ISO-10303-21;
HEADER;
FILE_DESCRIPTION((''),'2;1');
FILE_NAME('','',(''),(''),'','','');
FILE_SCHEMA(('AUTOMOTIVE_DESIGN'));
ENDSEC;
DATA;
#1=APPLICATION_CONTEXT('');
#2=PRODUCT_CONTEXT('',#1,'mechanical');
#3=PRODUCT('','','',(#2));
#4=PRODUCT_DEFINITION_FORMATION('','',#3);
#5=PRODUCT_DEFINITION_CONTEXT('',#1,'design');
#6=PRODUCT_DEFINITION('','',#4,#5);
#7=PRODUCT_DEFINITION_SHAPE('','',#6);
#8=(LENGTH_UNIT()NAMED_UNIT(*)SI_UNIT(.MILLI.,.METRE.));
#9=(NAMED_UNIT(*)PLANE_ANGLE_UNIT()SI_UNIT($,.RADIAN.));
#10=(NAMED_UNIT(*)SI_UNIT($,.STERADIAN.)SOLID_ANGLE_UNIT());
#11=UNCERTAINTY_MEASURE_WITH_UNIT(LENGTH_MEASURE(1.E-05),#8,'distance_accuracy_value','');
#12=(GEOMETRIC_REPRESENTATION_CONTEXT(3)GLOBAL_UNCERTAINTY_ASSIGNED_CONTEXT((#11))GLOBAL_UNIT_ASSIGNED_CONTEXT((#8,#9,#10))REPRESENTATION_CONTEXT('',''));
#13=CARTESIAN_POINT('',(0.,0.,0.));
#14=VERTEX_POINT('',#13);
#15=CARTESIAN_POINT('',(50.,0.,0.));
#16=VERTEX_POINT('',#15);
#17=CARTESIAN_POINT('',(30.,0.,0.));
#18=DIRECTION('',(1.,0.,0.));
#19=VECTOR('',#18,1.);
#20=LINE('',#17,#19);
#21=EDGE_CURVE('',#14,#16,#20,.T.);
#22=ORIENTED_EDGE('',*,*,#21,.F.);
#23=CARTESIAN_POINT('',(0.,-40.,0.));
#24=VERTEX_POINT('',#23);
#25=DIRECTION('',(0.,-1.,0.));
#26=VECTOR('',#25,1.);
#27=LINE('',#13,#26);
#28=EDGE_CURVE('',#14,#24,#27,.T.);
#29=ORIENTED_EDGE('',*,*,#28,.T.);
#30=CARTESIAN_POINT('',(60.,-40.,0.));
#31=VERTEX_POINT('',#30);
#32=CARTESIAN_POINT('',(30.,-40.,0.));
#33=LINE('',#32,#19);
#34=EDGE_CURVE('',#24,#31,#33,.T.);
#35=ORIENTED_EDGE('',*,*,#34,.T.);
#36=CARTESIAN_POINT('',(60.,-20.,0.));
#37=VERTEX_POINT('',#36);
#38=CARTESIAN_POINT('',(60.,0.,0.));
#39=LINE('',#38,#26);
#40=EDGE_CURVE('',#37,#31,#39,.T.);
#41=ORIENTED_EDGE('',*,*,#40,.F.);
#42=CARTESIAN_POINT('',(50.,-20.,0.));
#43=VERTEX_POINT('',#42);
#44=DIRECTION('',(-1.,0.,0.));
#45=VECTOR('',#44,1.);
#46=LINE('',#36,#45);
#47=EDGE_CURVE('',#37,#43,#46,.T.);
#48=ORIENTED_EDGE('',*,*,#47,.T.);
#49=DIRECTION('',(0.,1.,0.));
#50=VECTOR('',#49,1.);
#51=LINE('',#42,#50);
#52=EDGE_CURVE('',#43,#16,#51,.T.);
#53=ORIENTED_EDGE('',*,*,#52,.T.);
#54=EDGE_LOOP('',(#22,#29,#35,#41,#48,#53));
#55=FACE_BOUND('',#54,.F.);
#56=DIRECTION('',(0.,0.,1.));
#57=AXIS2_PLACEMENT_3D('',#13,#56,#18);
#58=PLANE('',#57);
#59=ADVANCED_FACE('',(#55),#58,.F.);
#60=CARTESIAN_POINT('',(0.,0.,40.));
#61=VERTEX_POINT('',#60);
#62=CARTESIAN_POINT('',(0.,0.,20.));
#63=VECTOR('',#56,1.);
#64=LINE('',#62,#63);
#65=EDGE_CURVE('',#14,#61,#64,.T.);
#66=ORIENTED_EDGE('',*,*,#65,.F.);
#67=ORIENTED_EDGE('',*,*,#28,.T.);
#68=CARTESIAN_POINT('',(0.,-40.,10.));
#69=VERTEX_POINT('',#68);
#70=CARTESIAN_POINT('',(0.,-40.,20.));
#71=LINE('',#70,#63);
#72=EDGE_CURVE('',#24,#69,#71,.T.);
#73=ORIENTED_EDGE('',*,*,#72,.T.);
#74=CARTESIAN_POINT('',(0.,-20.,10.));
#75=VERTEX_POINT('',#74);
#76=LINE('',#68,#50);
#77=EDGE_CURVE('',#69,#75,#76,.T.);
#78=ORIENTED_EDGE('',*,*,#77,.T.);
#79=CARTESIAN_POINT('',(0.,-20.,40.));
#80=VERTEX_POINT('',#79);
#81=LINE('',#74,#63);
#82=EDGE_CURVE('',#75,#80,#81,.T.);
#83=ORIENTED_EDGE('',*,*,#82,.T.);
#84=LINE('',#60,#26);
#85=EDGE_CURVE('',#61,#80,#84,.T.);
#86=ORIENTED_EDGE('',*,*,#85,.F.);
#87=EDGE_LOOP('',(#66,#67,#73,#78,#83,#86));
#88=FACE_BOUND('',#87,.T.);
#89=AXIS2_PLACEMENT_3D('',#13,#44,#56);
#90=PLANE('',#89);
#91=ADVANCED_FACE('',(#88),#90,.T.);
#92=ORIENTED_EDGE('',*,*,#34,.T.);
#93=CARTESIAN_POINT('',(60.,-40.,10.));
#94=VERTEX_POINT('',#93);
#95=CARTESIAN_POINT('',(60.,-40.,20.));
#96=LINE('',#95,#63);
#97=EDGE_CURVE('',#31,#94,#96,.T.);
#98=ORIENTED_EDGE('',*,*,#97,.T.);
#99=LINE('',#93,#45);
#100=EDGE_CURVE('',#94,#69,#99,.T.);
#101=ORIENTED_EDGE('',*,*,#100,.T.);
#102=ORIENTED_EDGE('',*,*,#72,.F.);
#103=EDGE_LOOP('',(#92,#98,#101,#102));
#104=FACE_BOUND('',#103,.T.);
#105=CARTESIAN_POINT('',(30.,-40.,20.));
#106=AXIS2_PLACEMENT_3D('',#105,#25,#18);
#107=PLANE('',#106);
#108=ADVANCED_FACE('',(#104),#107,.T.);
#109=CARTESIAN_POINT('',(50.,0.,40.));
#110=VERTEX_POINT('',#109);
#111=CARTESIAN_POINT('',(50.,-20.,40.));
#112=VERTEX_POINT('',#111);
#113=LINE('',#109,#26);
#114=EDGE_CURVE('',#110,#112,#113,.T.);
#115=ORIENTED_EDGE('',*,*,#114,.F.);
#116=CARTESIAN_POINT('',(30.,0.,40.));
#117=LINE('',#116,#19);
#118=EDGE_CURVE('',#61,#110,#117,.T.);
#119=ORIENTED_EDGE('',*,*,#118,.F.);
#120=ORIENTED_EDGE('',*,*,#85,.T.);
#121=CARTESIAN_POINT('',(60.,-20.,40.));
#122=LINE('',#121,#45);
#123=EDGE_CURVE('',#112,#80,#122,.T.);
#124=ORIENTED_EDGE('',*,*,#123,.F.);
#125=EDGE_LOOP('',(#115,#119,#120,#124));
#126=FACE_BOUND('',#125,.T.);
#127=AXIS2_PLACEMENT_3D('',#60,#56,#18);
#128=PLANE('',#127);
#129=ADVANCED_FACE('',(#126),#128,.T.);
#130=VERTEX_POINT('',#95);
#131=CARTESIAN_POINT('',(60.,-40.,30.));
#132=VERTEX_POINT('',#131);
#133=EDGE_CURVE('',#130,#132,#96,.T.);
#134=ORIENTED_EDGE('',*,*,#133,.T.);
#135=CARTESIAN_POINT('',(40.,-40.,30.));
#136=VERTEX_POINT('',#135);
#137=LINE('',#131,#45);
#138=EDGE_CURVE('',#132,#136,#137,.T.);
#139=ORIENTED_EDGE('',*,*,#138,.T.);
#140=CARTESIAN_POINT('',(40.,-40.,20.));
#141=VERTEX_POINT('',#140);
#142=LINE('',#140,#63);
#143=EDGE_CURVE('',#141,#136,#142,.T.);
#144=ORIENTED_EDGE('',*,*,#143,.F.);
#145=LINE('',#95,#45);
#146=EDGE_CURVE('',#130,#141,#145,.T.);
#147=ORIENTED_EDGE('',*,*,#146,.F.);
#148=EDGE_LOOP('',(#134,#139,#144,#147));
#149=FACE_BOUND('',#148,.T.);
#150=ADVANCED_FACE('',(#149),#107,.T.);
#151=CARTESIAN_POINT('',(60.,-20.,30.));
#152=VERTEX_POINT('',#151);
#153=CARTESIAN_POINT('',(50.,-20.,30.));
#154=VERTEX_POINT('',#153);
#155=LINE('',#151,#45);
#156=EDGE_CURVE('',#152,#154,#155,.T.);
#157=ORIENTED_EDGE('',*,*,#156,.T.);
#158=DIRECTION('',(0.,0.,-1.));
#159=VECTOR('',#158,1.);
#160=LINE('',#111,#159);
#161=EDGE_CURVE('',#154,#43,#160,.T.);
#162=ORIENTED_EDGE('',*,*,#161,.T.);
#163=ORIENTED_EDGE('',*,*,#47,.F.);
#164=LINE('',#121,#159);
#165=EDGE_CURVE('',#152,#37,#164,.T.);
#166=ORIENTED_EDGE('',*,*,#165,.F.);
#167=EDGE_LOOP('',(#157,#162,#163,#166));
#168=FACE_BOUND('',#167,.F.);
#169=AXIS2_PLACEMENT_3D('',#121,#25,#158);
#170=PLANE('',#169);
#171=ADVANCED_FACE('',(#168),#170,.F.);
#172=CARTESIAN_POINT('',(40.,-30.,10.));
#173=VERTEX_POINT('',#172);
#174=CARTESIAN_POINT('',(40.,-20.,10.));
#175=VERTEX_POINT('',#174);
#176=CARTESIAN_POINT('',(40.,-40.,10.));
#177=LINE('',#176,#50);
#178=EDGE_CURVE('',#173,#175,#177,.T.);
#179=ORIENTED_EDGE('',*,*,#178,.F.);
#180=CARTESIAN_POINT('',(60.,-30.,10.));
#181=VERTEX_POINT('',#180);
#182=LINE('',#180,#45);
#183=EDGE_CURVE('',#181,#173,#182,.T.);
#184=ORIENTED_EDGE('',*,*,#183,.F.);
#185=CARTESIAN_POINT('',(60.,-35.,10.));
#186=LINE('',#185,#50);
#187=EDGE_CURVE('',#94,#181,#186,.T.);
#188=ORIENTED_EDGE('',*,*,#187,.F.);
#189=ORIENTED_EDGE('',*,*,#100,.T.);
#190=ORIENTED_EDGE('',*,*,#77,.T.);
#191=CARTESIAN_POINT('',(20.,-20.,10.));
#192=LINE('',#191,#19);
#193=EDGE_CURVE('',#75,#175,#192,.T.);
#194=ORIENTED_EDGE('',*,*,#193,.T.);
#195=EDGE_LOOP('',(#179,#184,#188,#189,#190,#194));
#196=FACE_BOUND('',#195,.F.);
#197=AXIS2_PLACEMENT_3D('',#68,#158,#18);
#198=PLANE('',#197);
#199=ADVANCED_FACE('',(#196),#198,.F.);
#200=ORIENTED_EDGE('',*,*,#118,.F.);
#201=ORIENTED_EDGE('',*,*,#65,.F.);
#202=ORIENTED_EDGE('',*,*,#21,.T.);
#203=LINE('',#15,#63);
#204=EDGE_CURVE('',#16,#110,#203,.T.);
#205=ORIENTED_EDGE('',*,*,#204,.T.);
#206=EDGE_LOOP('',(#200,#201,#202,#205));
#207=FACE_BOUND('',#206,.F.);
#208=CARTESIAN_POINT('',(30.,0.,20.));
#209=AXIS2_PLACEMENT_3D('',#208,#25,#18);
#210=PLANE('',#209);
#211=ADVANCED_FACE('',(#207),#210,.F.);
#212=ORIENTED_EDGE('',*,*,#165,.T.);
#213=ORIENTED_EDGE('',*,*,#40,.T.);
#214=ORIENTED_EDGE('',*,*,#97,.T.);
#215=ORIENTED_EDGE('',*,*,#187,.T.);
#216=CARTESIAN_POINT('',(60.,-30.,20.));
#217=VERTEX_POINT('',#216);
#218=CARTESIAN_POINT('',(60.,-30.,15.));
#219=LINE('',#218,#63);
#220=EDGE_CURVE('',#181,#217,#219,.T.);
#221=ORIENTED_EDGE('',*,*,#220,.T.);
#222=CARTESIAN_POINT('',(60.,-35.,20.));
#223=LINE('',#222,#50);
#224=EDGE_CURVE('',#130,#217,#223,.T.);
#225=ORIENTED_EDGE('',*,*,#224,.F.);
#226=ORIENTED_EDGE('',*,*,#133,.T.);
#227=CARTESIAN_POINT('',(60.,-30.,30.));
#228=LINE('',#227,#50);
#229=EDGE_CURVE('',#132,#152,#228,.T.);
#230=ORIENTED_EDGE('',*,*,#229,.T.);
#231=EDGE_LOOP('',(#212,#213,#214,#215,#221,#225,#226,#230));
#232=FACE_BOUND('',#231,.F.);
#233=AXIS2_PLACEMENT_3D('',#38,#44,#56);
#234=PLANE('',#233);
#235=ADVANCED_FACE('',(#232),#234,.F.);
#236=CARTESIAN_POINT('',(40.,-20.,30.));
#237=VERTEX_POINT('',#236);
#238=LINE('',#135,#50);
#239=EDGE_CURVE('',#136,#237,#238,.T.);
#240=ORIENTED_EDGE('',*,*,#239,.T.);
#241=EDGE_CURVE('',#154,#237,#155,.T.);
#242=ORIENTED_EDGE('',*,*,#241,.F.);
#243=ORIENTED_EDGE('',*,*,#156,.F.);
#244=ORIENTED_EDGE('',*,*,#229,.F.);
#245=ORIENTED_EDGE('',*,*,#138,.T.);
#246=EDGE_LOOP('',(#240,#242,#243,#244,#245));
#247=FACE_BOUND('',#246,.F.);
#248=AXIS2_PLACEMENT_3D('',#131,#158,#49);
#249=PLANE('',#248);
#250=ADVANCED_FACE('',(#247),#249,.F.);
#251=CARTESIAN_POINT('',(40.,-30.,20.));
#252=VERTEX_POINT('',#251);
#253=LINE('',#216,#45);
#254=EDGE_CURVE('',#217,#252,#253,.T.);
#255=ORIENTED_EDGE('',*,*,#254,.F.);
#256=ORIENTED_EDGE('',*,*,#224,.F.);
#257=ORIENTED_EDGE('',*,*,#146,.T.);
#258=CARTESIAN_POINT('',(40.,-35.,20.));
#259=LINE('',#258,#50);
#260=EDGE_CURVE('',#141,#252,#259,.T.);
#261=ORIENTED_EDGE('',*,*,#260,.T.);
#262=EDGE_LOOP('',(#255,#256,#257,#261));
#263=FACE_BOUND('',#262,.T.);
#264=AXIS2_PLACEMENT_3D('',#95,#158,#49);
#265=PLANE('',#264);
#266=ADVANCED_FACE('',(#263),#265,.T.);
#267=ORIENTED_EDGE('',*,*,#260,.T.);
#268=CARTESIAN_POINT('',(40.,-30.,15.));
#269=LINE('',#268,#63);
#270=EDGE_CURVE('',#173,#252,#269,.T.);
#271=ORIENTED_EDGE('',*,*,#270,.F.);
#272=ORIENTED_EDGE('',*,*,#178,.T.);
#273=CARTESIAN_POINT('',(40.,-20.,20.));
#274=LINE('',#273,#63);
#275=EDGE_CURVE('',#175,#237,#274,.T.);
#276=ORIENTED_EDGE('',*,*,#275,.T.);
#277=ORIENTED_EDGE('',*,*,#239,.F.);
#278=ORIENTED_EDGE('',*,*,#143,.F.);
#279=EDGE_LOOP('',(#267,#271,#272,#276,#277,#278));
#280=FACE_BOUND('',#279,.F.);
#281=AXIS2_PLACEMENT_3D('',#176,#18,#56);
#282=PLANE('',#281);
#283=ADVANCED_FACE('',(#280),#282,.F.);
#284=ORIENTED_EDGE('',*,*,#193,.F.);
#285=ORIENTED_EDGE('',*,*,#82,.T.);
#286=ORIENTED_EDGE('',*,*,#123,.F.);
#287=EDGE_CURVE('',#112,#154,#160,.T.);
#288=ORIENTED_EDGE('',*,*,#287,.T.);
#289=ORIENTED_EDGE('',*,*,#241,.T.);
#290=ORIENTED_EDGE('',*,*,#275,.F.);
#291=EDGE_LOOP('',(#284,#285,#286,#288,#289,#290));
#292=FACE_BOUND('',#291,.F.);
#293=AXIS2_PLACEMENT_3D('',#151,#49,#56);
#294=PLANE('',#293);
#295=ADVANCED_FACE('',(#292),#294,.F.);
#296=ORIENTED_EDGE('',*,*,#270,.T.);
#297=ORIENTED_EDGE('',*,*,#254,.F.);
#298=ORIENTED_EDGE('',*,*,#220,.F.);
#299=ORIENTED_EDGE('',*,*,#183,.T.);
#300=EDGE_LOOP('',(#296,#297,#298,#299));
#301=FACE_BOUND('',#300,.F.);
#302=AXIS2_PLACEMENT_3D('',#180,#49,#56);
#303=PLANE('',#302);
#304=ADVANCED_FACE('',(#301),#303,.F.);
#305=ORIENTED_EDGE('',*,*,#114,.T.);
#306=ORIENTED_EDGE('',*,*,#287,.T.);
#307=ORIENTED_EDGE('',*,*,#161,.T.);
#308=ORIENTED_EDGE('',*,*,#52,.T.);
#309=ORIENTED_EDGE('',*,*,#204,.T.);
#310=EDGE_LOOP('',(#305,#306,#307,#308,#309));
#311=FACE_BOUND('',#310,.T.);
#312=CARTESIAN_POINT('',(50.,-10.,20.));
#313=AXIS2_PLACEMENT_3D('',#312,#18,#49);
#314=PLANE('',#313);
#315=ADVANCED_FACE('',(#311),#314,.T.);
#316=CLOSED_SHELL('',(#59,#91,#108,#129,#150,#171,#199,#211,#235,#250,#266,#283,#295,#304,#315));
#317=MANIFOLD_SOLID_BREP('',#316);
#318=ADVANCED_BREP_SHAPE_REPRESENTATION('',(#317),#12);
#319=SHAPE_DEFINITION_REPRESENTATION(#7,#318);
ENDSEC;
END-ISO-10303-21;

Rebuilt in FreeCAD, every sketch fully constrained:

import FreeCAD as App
import Part
import Sketcher
from FreeCAD import Vector
Q = App.Units.Quantity


def add_polygon(sketch, points):
    """Adds a closed chain of lines whose ends are joined by coincident constraints."""
    first, n = sketch.GeometryCount, len(points)
    for a, b in zip(points, points[1:] + points[:1]):
        sketch.addGeometry(Part.LineSegment(App.Vector(*a, 0), App.Vector(*b, 0)), False)
    for i in range(n):
        sketch.addConstraint(Sketcher.Constraint("Coincident", first + i, 2, first + (i + 1) % n, 1))

doc = App.newDocument("Part")
body = doc.addObject("PartDesign::Body", "Body")

sketch1 = body.newObject("Sketcher::SketchObject", "Sketch")
sketch1.AttachmentSupport = (doc.getObject("XZ_Plane"), [""])
sketch1.MapMode = "FlatFace"
add_polygon(sketch1, [(0, 40), (0, 0), (60, 0), (60, 40)])
sketch1.addConstraint(Sketcher.Constraint("Vertical", 0))
sketch1.addConstraint(Sketcher.Constraint("Horizontal", 1))
sketch1.addConstraint(Sketcher.Constraint("Vertical", 2))
sketch1.addConstraint(Sketcher.Constraint("Horizontal", 3))
sketch1.addConstraint(Sketcher.Constraint("Coincident", 0, 2, -1, 1))
sketch1.addConstraint(Sketcher.Constraint("DistanceX", 1, 1, 1, 2, Q("60 mm")))
sketch1.addConstraint(Sketcher.Constraint("DistanceY", 0, 2, 0, 1, Q("40 mm")))
pad1 = body.newObject("PartDesign::Pad", "Pad")
pad1.Profile = sketch1
pad1.Length = 40

sketch2 = body.newObject("Sketcher::SketchObject", "Sketch001")
sketch2.AttachmentSupport = (doc.getObject("YZ_Plane"), [""])
sketch2.MapMode = "FlatFace"
sketch2.AttachmentOffset = App.Placement(Vector(0, 0, 60), App.Rotation())
add_polygon(sketch2, [(-40, 40), (-40, 30), (-20, 30), (-20, 40)])
sketch2.addConstraint(Sketcher.Constraint("Vertical", 0))
sketch2.addConstraint(Sketcher.Constraint("Horizontal", 1))
sketch2.addConstraint(Sketcher.Constraint("Vertical", 2))
sketch2.addConstraint(Sketcher.Constraint("Horizontal", 3))
sketch2.addConstraint(Sketcher.Constraint("DistanceX", 1, 1, 1, 2, Q("20 mm")))
sketch2.addConstraint(Sketcher.Constraint("DistanceY", 0, 2, 0, 1, Q("10 mm")))
sketch2.addConstraint(Sketcher.Constraint("DistanceX", 0, 2, -1, 1, Q("40 mm")))
sketch2.addConstraint(Sketcher.Constraint("DistanceY", -1, 1, 0, 2, Q("30 mm")))
pocket1 = body.newObject("PartDesign::Pocket", "Pocket")
pocket1.Profile = sketch2
pocket1.Length = 60

sketch3 = body.newObject("Sketcher::SketchObject", "Sketch002")
sketch3.AttachmentSupport = (doc.getObject("YZ_Plane"), [""])
sketch3.MapMode = "FlatFace"
sketch3.AttachmentOffset = App.Placement(Vector(0, 0, 60), App.Rotation())
add_polygon(sketch3, [(-20, 0), (0, 0), (0, 40), (-20, 40)])
sketch3.addConstraint(Sketcher.Constraint("Horizontal", 0))
sketch3.addConstraint(Sketcher.Constraint("Vertical", 1))
sketch3.addConstraint(Sketcher.Constraint("Horizontal", 2))
sketch3.addConstraint(Sketcher.Constraint("Vertical", 3))
sketch3.addConstraint(Sketcher.Constraint("Coincident", 0, 2, -1, 1))
sketch3.addConstraint(Sketcher.Constraint("DistanceX", 0, 1, 0, 2, Q("20 mm")))
sketch3.addConstraint(Sketcher.Constraint("DistanceY", 1, 1, 1, 2, Q("40 mm")))
pocket2 = body.newObject("PartDesign::Pocket", "Pocket001")
pocket2.Profile = sketch3
pocket2.Length = 10

sketch4 = body.newObject("Sketcher::SketchObject", "Sketch003")
sketch4.AttachmentSupport = (doc.getObject("XZ_Plane"), [""])
sketch4.MapMode = "FlatFace"
sketch4.AttachmentOffset = App.Placement(Vector(0, 0, 40), App.Rotation())
add_polygon(sketch4, [(0, 30), (0, 10), (40, 10), (40, 30)])
sketch4.addConstraint(Sketcher.Constraint("Vertical", 0))
sketch4.addConstraint(Sketcher.Constraint("Horizontal", 1))
sketch4.addConstraint(Sketcher.Constraint("Vertical", 2))
sketch4.addConstraint(Sketcher.Constraint("Horizontal", 3))
sketch4.addConstraint(Sketcher.Constraint("PointOnObject", 0, 2, -2))
sketch4.addConstraint(Sketcher.Constraint("DistanceX", 1, 1, 1, 2, Q("40 mm")))
sketch4.addConstraint(Sketcher.Constraint("DistanceY", 0, 2, 0, 1, Q("20 mm")))
sketch4.addConstraint(Sketcher.Constraint("DistanceY", -1, 1, 0, 2, Q("10 mm")))
pocket3 = body.newObject("PartDesign::Pocket", "Pocket002")
pocket3.Profile = sketch4
pocket3.Length = 20

sketch5 = body.newObject("Sketcher::SketchObject", "Sketch004")
sketch5.AttachmentSupport = (doc.getObject("YZ_Plane"), [""])
sketch5.MapMode = "FlatFace"
sketch5.AttachmentOffset = App.Placement(Vector(0, 0, 60), App.Rotation())
add_polygon(sketch5, [(-40, 20), (-40, 10), (-30, 10), (-30, 20)])
sketch5.addConstraint(Sketcher.Constraint("Vertical", 0))
sketch5.addConstraint(Sketcher.Constraint("Horizontal", 1))
sketch5.addConstraint(Sketcher.Constraint("Vertical", 2))
sketch5.addConstraint(Sketcher.Constraint("Horizontal", 3))
sketch5.addConstraint(Sketcher.Constraint("Equal", 3, 0))
sketch5.addConstraint(Sketcher.Constraint("DistanceX", 1, 1, 1, 2, Q("10 mm")))
sketch5.addConstraint(Sketcher.Constraint("DistanceX", 0, 2, -1, 1, Q("40 mm")))
sketch5.addConstraint(Sketcher.Constraint("DistanceY", -1, 1, 0, 2, Q("10 mm")))
pocket4 = body.newObject("PartDesign::Pocket", "Pocket003")
pocket4.Profile = sketch5
pocket4.Length = 20

doc.recompute()
